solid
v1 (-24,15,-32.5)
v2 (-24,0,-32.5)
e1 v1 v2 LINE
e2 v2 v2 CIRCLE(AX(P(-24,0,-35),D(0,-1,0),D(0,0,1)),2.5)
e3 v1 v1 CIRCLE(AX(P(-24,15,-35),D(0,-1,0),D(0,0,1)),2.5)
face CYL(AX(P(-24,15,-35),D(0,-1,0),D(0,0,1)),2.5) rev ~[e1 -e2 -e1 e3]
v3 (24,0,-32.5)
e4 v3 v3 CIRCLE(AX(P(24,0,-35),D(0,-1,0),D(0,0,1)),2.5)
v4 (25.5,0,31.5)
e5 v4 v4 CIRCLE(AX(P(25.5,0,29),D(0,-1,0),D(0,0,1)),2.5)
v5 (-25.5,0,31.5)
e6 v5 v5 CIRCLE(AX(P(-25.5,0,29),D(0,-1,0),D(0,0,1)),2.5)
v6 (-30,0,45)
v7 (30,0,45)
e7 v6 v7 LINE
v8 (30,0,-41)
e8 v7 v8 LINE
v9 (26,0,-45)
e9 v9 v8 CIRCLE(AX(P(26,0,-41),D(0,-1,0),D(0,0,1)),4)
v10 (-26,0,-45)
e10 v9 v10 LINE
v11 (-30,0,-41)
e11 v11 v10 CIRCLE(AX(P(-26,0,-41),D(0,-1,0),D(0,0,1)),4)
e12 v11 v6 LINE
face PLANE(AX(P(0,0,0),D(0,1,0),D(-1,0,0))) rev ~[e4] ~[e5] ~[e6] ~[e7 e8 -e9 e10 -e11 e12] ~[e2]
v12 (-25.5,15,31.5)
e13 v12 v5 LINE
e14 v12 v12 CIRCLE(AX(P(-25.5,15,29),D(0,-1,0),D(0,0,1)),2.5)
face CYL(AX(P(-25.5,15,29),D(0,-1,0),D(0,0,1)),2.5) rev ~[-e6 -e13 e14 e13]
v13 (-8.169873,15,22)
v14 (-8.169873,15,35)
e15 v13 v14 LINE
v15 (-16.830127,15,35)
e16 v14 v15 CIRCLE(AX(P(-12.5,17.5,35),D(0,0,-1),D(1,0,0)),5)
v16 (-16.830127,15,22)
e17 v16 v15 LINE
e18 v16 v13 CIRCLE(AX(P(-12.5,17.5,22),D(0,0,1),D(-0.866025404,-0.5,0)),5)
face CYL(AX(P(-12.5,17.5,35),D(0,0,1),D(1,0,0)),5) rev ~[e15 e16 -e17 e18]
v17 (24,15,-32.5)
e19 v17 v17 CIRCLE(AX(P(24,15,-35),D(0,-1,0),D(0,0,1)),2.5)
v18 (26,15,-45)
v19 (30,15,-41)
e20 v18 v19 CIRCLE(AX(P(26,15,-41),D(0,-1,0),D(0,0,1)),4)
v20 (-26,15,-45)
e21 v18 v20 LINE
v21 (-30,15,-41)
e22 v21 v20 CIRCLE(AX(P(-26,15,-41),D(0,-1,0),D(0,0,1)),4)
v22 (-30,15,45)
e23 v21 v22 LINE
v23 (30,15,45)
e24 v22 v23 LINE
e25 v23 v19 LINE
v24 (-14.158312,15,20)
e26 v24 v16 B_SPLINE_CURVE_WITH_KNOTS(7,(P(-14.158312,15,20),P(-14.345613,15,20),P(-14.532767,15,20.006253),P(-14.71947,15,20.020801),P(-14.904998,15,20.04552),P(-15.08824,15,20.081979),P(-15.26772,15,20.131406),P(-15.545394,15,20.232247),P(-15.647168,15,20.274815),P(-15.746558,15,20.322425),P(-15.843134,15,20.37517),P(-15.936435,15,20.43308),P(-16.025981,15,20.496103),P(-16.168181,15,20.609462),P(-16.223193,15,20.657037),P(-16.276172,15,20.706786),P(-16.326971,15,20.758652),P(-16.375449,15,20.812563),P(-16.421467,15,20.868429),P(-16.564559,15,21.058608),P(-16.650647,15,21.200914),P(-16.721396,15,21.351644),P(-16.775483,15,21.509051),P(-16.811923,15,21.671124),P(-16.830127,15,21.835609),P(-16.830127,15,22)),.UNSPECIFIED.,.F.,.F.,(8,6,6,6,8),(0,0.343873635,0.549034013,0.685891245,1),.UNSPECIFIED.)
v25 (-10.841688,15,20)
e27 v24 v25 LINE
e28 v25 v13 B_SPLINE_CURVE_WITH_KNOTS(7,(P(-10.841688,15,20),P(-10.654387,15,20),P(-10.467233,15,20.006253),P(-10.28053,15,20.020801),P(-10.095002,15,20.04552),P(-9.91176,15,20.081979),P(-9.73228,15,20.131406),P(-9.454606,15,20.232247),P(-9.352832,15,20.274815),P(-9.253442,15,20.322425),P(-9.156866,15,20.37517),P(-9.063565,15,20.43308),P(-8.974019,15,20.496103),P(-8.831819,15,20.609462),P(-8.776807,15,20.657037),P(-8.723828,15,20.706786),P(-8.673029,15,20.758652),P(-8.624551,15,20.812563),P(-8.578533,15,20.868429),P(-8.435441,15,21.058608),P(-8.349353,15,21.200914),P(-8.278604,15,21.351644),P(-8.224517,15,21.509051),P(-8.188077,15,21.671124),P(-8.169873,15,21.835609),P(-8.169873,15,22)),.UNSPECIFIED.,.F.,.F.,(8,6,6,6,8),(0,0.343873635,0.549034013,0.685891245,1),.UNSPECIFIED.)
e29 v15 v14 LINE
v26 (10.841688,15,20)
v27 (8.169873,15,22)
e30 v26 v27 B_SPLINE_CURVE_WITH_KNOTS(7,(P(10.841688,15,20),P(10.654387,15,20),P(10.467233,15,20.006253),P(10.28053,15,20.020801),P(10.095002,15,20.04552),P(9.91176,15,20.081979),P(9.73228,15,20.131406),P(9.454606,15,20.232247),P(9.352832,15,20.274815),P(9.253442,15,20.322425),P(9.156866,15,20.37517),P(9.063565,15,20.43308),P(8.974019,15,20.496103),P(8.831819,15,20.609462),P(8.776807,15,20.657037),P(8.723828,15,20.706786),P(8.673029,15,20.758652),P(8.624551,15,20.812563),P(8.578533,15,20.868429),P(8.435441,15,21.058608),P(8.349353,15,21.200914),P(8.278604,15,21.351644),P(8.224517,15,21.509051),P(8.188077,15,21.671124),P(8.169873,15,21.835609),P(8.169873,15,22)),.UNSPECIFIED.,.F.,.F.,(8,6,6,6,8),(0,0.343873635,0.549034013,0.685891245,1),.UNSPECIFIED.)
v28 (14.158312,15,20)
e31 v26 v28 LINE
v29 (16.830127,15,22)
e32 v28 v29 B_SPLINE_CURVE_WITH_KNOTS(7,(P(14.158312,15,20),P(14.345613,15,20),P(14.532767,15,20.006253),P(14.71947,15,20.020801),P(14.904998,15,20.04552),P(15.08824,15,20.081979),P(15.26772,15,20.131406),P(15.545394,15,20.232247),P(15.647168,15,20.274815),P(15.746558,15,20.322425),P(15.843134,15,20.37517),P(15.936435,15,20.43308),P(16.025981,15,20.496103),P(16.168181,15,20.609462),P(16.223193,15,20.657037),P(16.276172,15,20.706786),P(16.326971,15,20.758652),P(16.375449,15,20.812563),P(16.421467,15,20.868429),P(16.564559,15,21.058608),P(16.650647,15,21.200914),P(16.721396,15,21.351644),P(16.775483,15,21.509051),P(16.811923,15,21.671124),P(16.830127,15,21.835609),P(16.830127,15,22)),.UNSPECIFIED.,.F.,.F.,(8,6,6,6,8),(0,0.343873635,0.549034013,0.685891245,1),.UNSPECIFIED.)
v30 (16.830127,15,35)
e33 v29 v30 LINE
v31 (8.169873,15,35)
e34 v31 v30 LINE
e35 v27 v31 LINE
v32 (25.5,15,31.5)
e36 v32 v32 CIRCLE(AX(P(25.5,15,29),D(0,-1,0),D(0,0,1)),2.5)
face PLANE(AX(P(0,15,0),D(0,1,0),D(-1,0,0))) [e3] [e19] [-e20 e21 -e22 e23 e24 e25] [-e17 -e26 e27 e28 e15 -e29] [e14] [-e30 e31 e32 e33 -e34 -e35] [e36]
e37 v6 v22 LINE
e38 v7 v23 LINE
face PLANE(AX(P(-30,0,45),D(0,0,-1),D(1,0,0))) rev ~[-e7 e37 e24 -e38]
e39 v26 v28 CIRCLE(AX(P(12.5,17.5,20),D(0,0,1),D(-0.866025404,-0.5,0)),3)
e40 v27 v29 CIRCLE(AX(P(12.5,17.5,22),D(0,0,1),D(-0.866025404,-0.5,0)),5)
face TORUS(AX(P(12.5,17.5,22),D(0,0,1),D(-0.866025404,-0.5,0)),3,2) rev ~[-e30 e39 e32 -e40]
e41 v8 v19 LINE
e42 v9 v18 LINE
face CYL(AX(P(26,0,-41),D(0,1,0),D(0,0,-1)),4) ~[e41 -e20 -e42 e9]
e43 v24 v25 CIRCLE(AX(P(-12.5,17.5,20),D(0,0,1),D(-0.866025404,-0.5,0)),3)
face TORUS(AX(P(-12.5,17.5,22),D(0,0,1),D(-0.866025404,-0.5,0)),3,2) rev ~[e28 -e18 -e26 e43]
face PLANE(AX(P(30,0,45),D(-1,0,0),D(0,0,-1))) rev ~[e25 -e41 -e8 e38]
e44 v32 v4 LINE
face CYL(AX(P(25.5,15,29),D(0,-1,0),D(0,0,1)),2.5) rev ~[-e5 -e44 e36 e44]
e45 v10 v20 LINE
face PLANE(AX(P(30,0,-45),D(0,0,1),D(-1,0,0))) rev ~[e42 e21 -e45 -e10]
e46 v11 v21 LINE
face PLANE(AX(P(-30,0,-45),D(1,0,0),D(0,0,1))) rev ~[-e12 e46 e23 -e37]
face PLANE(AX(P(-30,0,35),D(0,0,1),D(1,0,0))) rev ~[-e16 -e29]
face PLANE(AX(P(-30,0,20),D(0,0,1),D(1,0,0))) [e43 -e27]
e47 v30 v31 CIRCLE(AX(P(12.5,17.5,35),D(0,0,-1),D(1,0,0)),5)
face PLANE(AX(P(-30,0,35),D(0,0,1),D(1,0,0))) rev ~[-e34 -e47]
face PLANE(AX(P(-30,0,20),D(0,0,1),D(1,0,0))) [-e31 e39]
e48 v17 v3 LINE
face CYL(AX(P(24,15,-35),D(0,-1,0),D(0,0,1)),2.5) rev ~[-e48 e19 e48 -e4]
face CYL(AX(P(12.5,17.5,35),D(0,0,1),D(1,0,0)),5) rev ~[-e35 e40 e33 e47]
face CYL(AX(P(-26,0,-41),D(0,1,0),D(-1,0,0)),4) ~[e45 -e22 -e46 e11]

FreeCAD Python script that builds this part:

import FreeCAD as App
import Part
import Sketcher
from FreeCAD import Vector
Q = App.Units.Quantity


def edges_at(feature, points):
    """Names of the edges that pass closest to the given points."""
    edges = feature.Shape.Edges
    near = lambda p: min(range(len(edges)), key=lambda i: edges[i].distToShape(Part.Vertex(*p))[0])
    return sorted({f"Edge{near(p) + 1}" for p in points})


def add_polygon(sketch, points):
    """Adds a closed chain of lines whose ends are joined by coincident constraints."""
    first, n = sketch.GeometryCount, len(points)
    for a, b in zip(points, points[1:] + points[:1]):
        sketch.addGeometry(Part.LineSegment(App.Vector(*a, 0), App.Vector(*b, 0)), False)
    for i in range(n):
        sketch.addConstraint(Sketcher.Constraint("Coincident", first + i, 2, first + (i + 1) % n, 1))

doc = App.newDocument("Part")
body = doc.addObject("PartDesign::Body", "Body")

sketch1 = body.newObject("Sketcher::SketchObject", "Sketch")
sketch1.AttachmentSupport = (doc.getObject("XZ_Plane"), [""])
sketch1.MapMode = "FlatFace"
add_polygon(sketch1, [(-30, -45), (-30, 45), (30, 45), (30, -45)])
sketch1.addConstraint([
    Sketcher.Constraint("Vertical", 0),
    Sketcher.Constraint("Horizontal", 1),
    Sketcher.Constraint("Vertical", 2),
    Sketcher.Constraint("Horizontal", 3),
    Sketcher.Constraint("Symmetric", 0, 2, 2, 2, -1, 1),
    Sketcher.Constraint("DistanceX", 1, 1, 1, 2, Q("60 mm")),
    Sketcher.Constraint("DistanceY", 0, 1, 0, 2, Q("90 mm")),
])
pad1 = body.newObject("PartDesign::Pad", "Pad")
pad1.Profile = sketch1
pad1.Length = 15
pad1.Reversed = True
doc.recompute()

fillet = body.newObject("PartDesign::Fillet", "Fillet")
fillet.Base = (pad1, edges_at(pad1, [(30, 7.5, -45), (-30, 7.5, -45)]))
fillet.Radius = 4

sketch2 = body.newObject("Sketcher::SketchObject", "Sketch001")
sketch2.AttachmentSupport = (doc.getObject("XZ_Plane"), [""])
sketch2.MapMode = "FlatFace"
sketch2.AttachmentOffset = App.Placement(Vector(0, 0, -15), App.Rotation())
sketch2.addGeometry([
    Part.Circle(Vector(-24, -35, 0), Vector(0, 0, 1), 2.5),
    Part.Circle(Vector(24, -35, 0), Vector(0, 0, 1), 2.5),
    Part.Circle(Vector(25.5, 29, 0), Vector(0, 0, 1), 2.5),
    Part.Circle(Vector(-25.5, 29, 0), Vector(0, 0, 1), 2.5),
], False)
sketch2.addConstraint([
    Sketcher.Constraint("Equal", 0, 1),
    Sketcher.Constraint("Equal", 1, 2),
    Sketcher.Constraint("Equal", 2, 3),
    Sketcher.Constraint("Symmetric", 0, 3, 1, 3, -2),
    Sketcher.Constraint("Symmetric", 2, 3, 3, 3, -2),
    Sketcher.Constraint("Diameter", 0, Q("5 mm")),
    Sketcher.Constraint("DistanceX", 0, 3, -1, 1, Q("24 mm")),
    Sketcher.Constraint("DistanceY", 0, 3, -1, 1, Q("35 mm")),
    Sketcher.Constraint("DistanceY", -1, 1, 2, 3, Q("29 mm")),
    Sketcher.Constraint("DistanceX", 3, 3, 2, 3, Q("51 mm")),
])
doc.recompute()
hole = body.newObject("PartDesign::Hole", "Hole")
hole.Profile = sketch2
hole.ThreadType = "None"
hole.Diameter = 5
hole.DepthType = "ThroughAll"
hole.Reversed = True

sketch3 = body.newObject("Sketcher::SketchObject", "Sketch002")
sketch3.AttachmentSupport = (doc.getObject("XY_Plane"), [""])
sketch3.MapMode = "FlatFace"
sketch3.AttachmentOffset = App.Placement(Vector(0, 0, 35), App.Rotation())
sketch3.addGeometry([
    Part.Circle(Vector(-12.5, 17.5, 0), Vector(0, 0, 1), 5),
    Part.Circle(Vector(12.5, 17.5, 0), Vector(0, 0, 1), 5),
], False)
sketch3.addConstraint([
    Sketcher.Constraint("Equal", 0, 1),
    Sketcher.Constraint("Symmetric", 0, 3, 1, 3, -2),
    Sketcher.Constraint("Diameter", 0, Q("10 mm")),
    Sketcher.Constraint("DistanceX", 0, 3, 1, 3, Q("25 mm")),
    Sketcher.Constraint("DistanceY", -1, 1, 0, 3, Q("17.5 mm")),
])
pocket1 = body.newObject("PartDesign::Pocket", "Pocket")
pocket1.Profile = sketch3
pocket1.Length = 15
doc.recompute()

fillet2 = body.newObject("PartDesign::Fillet", "Fillet001")
fillet2.Base = (pocket1, edges_at(pocket1, [(-12.5, 12.5, 20), (12.5, 12.5, 20)]))
fillet2.Radius = 2

doc.recompute()
